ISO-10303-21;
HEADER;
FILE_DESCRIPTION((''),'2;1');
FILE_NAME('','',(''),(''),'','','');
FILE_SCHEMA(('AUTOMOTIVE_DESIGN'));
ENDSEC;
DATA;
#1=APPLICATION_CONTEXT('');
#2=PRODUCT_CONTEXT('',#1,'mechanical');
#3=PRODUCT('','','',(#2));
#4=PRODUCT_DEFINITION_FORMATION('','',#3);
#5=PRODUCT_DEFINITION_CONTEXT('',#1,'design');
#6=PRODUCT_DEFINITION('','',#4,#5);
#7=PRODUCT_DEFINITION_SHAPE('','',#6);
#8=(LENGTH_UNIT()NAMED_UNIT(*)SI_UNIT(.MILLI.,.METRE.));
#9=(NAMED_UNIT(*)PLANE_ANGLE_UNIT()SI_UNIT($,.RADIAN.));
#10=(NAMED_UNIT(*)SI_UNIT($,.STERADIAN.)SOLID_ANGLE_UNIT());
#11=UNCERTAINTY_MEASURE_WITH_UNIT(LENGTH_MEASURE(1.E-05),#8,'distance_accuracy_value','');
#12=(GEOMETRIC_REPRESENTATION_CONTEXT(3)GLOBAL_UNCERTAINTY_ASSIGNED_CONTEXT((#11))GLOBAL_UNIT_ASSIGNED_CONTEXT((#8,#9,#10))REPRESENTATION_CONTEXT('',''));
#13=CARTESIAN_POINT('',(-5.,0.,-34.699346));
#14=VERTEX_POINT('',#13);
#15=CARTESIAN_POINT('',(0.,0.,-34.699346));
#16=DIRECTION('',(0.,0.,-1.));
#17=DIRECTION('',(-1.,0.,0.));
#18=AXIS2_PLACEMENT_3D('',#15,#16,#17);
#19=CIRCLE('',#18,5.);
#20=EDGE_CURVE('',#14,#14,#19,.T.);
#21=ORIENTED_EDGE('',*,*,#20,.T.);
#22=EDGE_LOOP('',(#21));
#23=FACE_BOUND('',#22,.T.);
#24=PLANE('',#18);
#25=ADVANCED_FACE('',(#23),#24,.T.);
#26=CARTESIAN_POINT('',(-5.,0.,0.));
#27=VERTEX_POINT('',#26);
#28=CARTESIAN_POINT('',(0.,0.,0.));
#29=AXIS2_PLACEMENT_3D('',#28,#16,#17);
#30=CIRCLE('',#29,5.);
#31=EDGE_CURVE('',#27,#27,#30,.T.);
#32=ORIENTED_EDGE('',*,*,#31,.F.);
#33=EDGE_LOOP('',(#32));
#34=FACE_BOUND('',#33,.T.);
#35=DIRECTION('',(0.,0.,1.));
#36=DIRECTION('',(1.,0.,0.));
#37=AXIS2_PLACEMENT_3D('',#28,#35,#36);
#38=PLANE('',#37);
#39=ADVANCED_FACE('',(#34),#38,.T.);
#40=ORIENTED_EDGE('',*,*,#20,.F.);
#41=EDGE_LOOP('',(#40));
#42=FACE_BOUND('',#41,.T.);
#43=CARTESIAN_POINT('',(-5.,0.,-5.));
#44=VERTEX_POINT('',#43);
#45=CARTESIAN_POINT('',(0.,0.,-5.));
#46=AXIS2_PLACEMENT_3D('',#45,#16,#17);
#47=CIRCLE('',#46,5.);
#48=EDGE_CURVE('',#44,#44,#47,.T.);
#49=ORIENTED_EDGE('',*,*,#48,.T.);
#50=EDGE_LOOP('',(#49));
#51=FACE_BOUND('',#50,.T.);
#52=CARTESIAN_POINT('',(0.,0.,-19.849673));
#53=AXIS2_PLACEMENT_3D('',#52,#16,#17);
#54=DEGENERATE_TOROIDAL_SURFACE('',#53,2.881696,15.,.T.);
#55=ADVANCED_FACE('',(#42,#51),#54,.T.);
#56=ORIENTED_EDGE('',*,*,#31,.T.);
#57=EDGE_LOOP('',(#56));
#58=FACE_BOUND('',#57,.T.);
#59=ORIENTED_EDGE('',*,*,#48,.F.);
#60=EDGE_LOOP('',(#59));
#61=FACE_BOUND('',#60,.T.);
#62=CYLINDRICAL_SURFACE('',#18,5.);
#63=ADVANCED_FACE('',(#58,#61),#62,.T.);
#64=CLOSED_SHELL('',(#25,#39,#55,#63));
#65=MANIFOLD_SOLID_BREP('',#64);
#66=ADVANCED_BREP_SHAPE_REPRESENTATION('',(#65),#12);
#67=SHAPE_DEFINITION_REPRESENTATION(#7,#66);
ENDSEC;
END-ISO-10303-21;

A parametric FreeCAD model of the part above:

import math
import FreeCAD as App
import Part
import Sketcher
from FreeCAD import Vector
Q = App.Units.Quantity

doc = App.newDocument("Part")
params = doc.addObject("Spreadsheet::Sheet", "Params")
for row, (alias, value) in enumerate([
    ("sketch1_radius", "15 mm"),
    ("sketch1_width", "5 mm"),
    ("revolution_angle", "360 deg"),
], start=1):
    params.set(f"A{row}", alias)
    params.set(f"B{row}", "=" + value)
    params.setAlias(f"B{row}", alias)

body = doc.addObject("PartDesign::Body", "Body")

sketch1 = body.newObject("Sketcher::SketchObject", "Sketch")
sketch1.AttachmentSupport = (doc.getObject("XZ_Plane"), [""])
sketch1.MapMode = "FlatFace"
sketch1.addGeometry([
    Part.LineSegment(Vector(0, 0, 0), Vector(0, -34.699346, 0)),
    Part.LineSegment(Vector(0, -34.699346, 0), Vector(-5, -34.699346, 0)),
    Part.ArcOfCircle(Part.Circle(Vector(-2.881696, -19.849673, 0), Vector(0, 0, 1), 15), math.radians(98.118465), math.radians(261.881535)),
    Part.LineSegment(Vector(-5, -5, 0), Vector(-5, 0, 0)),
    Part.LineSegment(Vector(-5, 0, 0), Vector(0, 0, 0)),
], False)
sketch1.addConstraint([
    Sketcher.Constraint("Coincident", 0, 2, 1, 1),
    Sketcher.Constraint("Coincident", 1, 2, 2, 2),
    Sketcher.Constraint("Coincident", 2, 1, 3, 1),
    Sketcher.Constraint("Coincident", 3, 2, 4, 1),
    Sketcher.Constraint("Coincident", 4, 2, 0, 1),
    Sketcher.Constraint("Vertical", 0),
    Sketcher.Constraint("Horizontal", 1),
    Sketcher.Constraint("Vertical", 3),
    Sketcher.Constraint("Horizontal", 4),
    Sketcher.Constraint("Coincident", 4, 2, -1, 1),
    Sketcher.Constraint("Vertical", 1, 2, 2, 1),
    Sketcher.Constraint("Equal", 4, 3),
    Sketcher.Constraint("Radius", 2, Q("15 mm")),
    Sketcher.Constraint("DistanceX", 1, 2, 1, 1, Q("5 mm")),
    Sketcher.Constraint("DistanceY", 0, 2, 0, 1, Q("34.699346 mm")),
])
sketch1.setExpression("Constraints[12]", "Params.sketch1_radius")
sketch1.setExpression("Constraints[13]", "Params.sketch1_width")
revolution = body.newObject("PartDesign::Revolution", "Revolution")
revolution.Profile = sketch1
revolution.ReferenceAxis = (sketch1, ["V_Axis"])
revolution.setExpression("Angle", "Params.revolution_angle")

doc.recompute()
